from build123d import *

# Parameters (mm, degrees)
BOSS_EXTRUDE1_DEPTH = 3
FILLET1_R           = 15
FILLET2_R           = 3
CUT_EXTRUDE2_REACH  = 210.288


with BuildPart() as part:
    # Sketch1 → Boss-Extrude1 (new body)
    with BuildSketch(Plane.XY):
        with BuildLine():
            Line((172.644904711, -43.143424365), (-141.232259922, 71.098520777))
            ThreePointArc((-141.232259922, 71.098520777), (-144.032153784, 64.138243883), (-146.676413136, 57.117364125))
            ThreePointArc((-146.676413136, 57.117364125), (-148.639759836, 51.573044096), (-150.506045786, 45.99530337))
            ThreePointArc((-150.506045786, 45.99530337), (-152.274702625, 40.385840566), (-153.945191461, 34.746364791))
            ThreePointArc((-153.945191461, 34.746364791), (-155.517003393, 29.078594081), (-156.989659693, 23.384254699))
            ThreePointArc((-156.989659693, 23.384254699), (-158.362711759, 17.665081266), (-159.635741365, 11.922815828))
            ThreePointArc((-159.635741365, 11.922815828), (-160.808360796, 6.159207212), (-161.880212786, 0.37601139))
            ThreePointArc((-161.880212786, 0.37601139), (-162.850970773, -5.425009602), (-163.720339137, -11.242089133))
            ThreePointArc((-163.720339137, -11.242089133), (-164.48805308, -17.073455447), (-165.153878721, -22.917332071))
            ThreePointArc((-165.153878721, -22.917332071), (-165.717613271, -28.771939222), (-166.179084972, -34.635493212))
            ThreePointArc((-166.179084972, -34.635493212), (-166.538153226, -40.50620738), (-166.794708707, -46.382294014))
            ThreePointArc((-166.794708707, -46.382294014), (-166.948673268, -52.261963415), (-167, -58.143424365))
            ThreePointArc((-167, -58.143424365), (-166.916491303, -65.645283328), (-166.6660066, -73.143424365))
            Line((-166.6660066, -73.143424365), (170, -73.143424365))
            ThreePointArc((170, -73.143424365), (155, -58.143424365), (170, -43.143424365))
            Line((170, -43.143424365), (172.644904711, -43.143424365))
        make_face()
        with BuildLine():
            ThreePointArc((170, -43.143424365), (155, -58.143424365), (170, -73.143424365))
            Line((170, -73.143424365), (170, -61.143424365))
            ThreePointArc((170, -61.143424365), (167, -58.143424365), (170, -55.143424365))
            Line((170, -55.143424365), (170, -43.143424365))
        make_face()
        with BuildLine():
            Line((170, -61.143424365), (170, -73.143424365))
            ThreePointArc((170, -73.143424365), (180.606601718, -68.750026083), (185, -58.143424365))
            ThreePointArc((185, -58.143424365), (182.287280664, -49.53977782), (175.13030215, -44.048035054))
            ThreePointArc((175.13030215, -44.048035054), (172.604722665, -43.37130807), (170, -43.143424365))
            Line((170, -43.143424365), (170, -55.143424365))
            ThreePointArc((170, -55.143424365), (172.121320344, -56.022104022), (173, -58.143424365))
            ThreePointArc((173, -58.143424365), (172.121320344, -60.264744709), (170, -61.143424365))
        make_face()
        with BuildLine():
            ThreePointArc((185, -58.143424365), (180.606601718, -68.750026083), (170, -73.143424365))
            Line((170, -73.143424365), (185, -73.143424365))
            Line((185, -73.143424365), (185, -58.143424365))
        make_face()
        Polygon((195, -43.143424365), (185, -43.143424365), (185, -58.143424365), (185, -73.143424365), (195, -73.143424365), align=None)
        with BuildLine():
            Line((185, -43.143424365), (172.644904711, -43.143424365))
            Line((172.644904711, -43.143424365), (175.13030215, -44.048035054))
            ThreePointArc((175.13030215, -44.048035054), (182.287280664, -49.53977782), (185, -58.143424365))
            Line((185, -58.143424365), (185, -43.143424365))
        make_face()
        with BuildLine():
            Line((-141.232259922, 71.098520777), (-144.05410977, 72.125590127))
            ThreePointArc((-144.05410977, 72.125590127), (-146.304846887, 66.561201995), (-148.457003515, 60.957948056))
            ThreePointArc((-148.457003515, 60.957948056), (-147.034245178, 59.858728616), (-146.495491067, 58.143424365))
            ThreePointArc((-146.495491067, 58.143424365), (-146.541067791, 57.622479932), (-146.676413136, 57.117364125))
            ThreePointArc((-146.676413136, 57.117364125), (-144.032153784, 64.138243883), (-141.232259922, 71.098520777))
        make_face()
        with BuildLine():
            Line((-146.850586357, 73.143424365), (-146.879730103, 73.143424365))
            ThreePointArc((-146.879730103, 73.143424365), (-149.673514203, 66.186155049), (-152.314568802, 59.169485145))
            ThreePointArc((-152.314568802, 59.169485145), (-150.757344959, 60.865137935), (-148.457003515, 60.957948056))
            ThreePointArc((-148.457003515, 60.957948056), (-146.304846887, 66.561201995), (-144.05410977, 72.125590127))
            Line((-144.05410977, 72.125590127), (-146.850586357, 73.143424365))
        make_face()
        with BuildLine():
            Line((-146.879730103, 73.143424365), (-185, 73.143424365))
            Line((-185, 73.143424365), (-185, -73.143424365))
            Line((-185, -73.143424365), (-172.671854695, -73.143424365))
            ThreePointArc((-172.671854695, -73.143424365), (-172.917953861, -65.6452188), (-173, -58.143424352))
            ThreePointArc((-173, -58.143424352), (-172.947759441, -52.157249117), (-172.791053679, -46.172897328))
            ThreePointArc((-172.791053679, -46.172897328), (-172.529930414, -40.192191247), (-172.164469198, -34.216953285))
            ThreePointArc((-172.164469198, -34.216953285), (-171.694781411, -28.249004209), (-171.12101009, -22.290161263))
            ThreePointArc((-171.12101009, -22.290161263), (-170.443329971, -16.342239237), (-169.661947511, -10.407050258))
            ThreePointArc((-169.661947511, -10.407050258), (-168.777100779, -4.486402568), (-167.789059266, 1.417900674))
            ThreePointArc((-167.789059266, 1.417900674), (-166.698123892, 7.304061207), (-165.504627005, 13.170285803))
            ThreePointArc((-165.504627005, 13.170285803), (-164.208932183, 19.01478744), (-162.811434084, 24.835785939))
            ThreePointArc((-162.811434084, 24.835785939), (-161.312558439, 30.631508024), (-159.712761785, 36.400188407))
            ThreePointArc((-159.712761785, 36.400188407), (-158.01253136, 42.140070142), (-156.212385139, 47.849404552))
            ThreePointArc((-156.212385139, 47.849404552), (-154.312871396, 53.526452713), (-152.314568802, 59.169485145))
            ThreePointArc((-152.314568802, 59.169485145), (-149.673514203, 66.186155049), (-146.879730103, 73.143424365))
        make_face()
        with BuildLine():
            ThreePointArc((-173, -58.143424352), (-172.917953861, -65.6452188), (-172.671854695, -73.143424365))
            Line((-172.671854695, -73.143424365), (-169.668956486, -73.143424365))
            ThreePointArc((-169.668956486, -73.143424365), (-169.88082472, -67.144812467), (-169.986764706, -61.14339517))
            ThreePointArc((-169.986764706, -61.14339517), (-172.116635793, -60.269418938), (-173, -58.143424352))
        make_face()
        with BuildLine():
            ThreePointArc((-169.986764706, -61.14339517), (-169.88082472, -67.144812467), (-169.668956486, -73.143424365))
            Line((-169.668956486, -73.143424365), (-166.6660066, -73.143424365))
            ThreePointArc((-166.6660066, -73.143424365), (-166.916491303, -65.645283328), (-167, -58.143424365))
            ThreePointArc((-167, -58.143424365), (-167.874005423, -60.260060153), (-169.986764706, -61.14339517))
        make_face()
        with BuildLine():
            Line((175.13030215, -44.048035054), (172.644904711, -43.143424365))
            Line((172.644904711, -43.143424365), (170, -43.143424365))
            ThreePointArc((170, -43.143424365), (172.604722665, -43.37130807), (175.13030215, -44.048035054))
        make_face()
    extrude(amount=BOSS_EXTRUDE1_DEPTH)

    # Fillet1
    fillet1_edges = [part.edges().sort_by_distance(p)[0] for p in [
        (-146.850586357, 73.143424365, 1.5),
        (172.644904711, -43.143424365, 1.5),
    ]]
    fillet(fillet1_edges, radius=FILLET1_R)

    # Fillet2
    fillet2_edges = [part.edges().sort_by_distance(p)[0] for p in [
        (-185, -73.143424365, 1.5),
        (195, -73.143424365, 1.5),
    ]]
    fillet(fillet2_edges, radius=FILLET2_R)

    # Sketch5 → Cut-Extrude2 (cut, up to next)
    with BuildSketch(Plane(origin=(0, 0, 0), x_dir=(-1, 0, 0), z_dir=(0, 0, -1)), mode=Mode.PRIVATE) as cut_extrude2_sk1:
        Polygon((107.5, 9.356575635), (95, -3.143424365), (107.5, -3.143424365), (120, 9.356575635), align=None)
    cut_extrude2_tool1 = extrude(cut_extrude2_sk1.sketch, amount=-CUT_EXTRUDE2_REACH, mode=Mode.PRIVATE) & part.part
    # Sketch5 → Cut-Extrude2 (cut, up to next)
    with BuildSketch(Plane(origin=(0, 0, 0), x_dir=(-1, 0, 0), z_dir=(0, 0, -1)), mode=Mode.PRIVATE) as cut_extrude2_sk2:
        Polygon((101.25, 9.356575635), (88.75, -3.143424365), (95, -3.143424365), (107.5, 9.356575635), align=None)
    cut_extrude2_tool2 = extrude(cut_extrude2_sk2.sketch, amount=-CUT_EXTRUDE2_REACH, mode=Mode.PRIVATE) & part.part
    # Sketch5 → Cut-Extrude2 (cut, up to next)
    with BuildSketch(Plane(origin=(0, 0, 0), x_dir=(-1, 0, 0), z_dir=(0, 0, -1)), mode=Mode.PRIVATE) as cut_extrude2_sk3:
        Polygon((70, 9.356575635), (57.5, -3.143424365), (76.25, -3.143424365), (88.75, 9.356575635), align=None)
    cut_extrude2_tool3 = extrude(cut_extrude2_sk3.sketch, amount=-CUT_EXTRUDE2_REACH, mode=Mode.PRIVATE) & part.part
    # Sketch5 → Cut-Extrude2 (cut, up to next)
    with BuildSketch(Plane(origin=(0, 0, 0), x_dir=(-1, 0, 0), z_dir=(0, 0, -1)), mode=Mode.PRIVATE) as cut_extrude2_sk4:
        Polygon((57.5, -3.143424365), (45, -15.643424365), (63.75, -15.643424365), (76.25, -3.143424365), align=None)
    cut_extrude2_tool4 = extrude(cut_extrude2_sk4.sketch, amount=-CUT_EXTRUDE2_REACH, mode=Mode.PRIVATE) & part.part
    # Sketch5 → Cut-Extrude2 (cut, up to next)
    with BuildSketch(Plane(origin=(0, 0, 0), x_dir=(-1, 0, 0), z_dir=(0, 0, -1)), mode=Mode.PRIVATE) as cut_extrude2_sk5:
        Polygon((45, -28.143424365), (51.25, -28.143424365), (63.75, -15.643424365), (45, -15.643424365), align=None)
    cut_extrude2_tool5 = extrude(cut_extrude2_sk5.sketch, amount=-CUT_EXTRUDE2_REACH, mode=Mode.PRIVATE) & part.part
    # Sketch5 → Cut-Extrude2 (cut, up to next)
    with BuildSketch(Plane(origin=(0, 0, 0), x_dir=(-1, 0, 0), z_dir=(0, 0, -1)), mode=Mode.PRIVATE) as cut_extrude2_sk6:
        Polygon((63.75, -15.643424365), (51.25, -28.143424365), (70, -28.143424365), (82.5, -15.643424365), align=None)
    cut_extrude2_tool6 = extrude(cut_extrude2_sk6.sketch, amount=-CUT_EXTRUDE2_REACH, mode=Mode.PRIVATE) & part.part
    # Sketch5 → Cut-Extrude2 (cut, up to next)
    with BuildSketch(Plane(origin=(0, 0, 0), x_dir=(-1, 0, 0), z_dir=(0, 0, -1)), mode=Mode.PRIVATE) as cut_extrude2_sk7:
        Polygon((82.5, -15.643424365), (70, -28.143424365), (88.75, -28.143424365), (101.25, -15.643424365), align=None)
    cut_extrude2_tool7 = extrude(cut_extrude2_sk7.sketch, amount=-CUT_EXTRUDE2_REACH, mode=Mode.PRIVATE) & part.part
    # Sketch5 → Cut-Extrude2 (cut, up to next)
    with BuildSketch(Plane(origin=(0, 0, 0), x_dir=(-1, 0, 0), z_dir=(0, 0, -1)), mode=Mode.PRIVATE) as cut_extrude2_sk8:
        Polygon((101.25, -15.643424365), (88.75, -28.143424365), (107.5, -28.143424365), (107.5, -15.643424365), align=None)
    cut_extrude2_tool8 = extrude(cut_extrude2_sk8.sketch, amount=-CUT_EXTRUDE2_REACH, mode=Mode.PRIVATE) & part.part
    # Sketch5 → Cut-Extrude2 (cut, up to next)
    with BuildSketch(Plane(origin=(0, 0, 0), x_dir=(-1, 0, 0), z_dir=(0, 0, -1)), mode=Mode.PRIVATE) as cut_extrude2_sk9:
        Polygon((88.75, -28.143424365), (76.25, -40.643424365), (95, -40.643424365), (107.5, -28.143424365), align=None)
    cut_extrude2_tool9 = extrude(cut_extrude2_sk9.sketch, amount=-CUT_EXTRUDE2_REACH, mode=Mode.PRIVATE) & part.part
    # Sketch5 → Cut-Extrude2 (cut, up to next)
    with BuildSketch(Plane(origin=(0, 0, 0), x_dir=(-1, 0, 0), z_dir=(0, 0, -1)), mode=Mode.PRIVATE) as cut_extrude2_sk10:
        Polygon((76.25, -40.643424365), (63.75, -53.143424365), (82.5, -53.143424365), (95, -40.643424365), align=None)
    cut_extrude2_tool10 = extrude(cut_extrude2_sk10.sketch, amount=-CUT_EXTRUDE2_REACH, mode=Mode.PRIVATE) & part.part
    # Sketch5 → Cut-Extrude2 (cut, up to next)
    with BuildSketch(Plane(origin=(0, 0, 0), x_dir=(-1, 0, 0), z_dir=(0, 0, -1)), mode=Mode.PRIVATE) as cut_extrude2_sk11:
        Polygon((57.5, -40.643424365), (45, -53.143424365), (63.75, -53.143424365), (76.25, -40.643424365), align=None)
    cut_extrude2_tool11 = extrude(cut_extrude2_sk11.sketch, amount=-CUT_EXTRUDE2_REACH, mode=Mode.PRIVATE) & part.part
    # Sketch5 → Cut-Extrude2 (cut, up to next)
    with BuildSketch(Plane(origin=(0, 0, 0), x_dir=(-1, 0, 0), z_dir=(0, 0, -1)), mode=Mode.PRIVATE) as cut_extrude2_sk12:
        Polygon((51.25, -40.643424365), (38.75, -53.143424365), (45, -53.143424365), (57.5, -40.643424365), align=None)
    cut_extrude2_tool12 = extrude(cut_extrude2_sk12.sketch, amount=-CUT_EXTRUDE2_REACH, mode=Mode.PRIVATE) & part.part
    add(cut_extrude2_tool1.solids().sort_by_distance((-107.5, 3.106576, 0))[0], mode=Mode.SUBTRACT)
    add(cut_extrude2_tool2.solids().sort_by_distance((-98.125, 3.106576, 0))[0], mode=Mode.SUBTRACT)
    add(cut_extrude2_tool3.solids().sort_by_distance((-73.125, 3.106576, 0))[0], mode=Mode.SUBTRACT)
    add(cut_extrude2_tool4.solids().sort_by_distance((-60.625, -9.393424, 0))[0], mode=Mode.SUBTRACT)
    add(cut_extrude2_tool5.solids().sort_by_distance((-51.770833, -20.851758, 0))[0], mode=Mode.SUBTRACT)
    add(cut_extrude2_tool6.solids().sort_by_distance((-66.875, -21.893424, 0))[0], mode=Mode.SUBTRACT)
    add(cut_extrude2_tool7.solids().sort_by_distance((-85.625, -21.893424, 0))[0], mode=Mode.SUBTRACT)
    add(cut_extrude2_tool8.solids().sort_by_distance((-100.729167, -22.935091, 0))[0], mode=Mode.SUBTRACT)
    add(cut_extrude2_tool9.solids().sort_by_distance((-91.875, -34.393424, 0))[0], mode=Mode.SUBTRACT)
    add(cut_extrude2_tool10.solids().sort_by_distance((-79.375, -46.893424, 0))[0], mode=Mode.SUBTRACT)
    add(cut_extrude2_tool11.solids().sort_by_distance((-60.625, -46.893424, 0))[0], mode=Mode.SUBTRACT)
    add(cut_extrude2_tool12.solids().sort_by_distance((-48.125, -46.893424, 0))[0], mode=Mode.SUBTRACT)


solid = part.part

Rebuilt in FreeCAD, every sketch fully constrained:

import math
import FreeCAD as App
import Part
import Sketcher

V = App.Vector
Q = App.Units.Quantity


def edges_at(feature, points):
    """Names of the edges that pass closest to the given points."""
    edges = feature.Shape.Edges
    near = lambda p: min(range(len(edges)), key=lambda i: edges[i].distToShape(Part.Vertex(*p))[0])
    return sorted({f"Edge{near(p) + 1}" for p in points})


def add_polygon(sketch, points):
    """Adds a closed chain of lines whose ends are joined by coincident constraints."""
    first, n = sketch.GeometryCount, len(points)
    for a, b in zip(points, points[1:] + points[:1]):
        sketch.addGeometry(Part.LineSegment(App.Vector(*a, 0), App.Vector(*b, 0)), False)
    for i in range(n):
        sketch.addConstraint(Sketcher.Constraint("Coincident", first + i, 2, first + (i + 1) % n, 1))

doc = App.newDocument("Part")
body = doc.addObject("PartDesign::Body", "Body")

sketch1 = body.newObject("Sketcher::SketchObject", "Sketch")
sketch1.AttachmentSupport = (doc.getObject("XY_Plane"), [""])
sketch1.MapMode = "FlatFace"
add_polygon(sketch1, [(195, -43.1), (172.6, -43.1), (-141.2, 71.1), (-144.1, 72.1), (-146.9, 73.1), (-185, 73.1), (-185, -73.1), (195, -73.1)])
sketch1.addGeometry(Part.ArcOfCircle(Part.Circle(V(170, -58.1, 0), V(0, 0, 1), 3), math.radians(90), math.radians(270)), False)
sketch1.addGeometry(Part.ArcOfCircle(Part.Circle(V(170, -58.1, 0), V(0, 0, 1), 3), math.radians(0), math.radians(90)), False)
sketch1.addGeometry(Part.ArcOfCircle(Part.Circle(V(170, -58.1, 0), V(0, 0, 1), 3), math.radians(-90), math.radians(0)), False)
sketch1.addGeometry(Part.ArcOfCircle(Part.Circle(V(170, -58.1, 0), V(0, 0, 1), 337), math.radians(178), math.radians(180)), False)
sketch1.addGeometry(Part.ArcOfCircle(Part.Circle(V(-170, -58.1, 0), V(0, 0, 1), 3), math.radians(-90), math.radians(0)), False)
sketch1.addGeometry(Part.ArcOfCircle(Part.Circle(V(-170, -58.1, 0), V(0, 0, 1), 3), math.radians(180), math.radians(270)), False)
sketch1.addGeometry(Part.ArcOfCircle(Part.Circle(V(170, -58.1, 0), V(0, 0, 1), 343), math.radians(178), math.radians(180)), False)
sketch1.addGeometry(Part.ArcOfCircle(Part.Circle(V(170, -58.1, 0), V(0, 0, 1), 343), math.radians(176), math.radians(178)), False)
sketch1.addGeometry(Part.ArcOfCircle(Part.Circle(V(170, -58.1, 0), V(0, 0, 1), 343), math.radians(174), math.radians(176)), False)
sketch1.addGeometry(Part.ArcOfCircle(Part.Circle(V(170, -58.1, 0), V(0, 0, 1), 343), math.radians(172), math.radians(174)), False)
sketch1.addGeometry(Part.ArcOfCircle(Part.Circle(V(170, -58.1, 0), V(0, 0, 1), 343), math.radians(170), math.radians(172)), False)
sketch1.addGeometry(Part.ArcOfCircle(Part.Circle(V(170, -58.1, 0), V(0, 0, 1), 343), math.radians(168), math.radians(170)), False)
sketch1.addGeometry(Part.ArcOfCircle(Part.Circle(V(170, -58.1, 0), V(0, 0, 1), 343), math.radians(166), math.radians(168)), False)
sketch1.addGeometry(Part.ArcOfCircle(Part.Circle(V(170, -58.1, 0), V(0, 0, 1), 343), math.radians(164), math.radians(166)), False)
sketch1.addGeometry(Part.ArcOfCircle(Part.Circle(V(170, -58.1, 0), V(0, 0, 1), 343), math.radians(162), math.radians(164)), False)
sketch1.addGeometry(Part.ArcOfCircle(Part.Circle(V(170, -58.1, 0), V(0, 0, 1), 343), math.radians(160), math.radians(162)), False)
sketch1.addGeometry(Part.ArcOfCircle(Part.Circle(V(-149.5, 58.1, 0), V(0, 0, 1), 3), math.radians(70), math.radians(160)), False)
sketch1.addGeometry(Part.ArcOfCircle(Part.Circle(V(-149.5, 58.1, 0), V(0, 0, 1), 3), math.radians(0), math.radians(70)), False)
sketch1.addGeometry(Part.ArcOfCircle(Part.Circle(V(-149.5, 58.1, 0), V(0, 0, 1), 3), math.radians(-20), math.radians(0)), False)
sketch1.addGeometry(Part.ArcOfCircle(Part.Circle(V(170, -58.1, 0), V(0, 0, 1), 337), math.radians(160), math.radians(162)), False)
sketch1.addGeometry(Part.ArcOfCircle(Part.Circle(V(170, -58.1, 0), V(0, 0, 1), 337), math.radians(162), math.radians(164)), False)
sketch1.addGeometry(Part.ArcOfCircle(Part.Circle(V(170, -58.1, 0), V(0, 0, 1), 337), math.radians(164), math.radians(166)), False)
sketch1.addGeometry(Part.ArcOfCircle(Part.Circle(V(170, -58.1, 0), V(0, 0, 1), 337), math.radians(166), math.radians(168)), False)
sketch1.addGeometry(Part.ArcOfCircle(Part.Circle(V(170, -58.1, 0), V(0, 0, 1), 337), math.radians(168), math.radians(170)), False)
sketch1.addGeometry(Part.ArcOfCircle(Part.Circle(V(170, -58.1, 0), V(0, 0, 1), 337), math.radians(170), math.radians(172)), False)
sketch1.addGeometry(Part.ArcOfCircle(Part.Circle(V(170, -58.1, 0), V(0, 0, 1), 337), math.radians(172), math.radians(174)), False)
sketch1.addGeometry(Part.ArcOfCircle(Part.Circle(V(170, -58.1, 0), V(0, 0, 1), 337), math.radians(174), math.radians(176)), False)
sketch1.addGeometry(Part.ArcOfCircle(Part.Circle(V(170, -58.1, 0), V(0, 0, 1), 337), math.radians(176), math.radians(178)), False)
sketch1.addConstraint([
    Sketcher.Constraint("Tangent", 8, 1, 9, 2),
    Sketcher.Constraint("Tangent", 9, 1, 10, 2),
    Sketcher.Constraint("Tangent", 10, 1, 8, 2),
    Sketcher.Constraint("Tangent", 11, 2, 12, 2),
    Sketcher.Constraint("Tangent", 12, 1, 13, 2),
    Sketcher.Constraint("Tangent", 13, 1, 14, 2),
    Sketcher.Constraint("Tangent", 14, 1, 15, 2),
    Sketcher.Constraint("Tangent", 15, 1, 16, 2),
    Sketcher.Constraint("Tangent", 16, 1, 17, 2),
    Sketcher.Constraint("Tangent", 17, 1, 18, 2),
    Sketcher.Constraint("Tangent", 18, 1, 19, 2),
    Sketcher.Constraint("Tangent", 19, 1, 20, 2),
    Sketcher.Constraint("Tangent", 20, 1, 21, 2),
    Sketcher.Constraint("Tangent", 21, 1, 22, 2),
    Sketcher.Constraint("Tangent", 22, 1, 23, 2),
    Sketcher.Constraint("Tangent", 23, 1, 24, 2),
    Sketcher.Constraint("Tangent", 24, 1, 25, 2),
    Sketcher.Constraint("Tangent", 25, 1, 26, 2),
    Sketcher.Constraint("Tangent", 26, 1, 27, 1),
    Sketcher.Constraint("Tangent", 27, 2, 28, 1),
    Sketcher.Constraint("Tangent", 28, 2, 29, 1),
    Sketcher.Constraint("Tangent", 29, 2, 30, 1),
    Sketcher.Constraint("Tangent", 30, 2, 31, 1),
    Sketcher.Constraint("Tangent", 31, 2, 32, 1),
    Sketcher.Constraint("Tangent", 32, 2, 33, 1),
    Sketcher.Constraint("Tangent", 33, 2, 34, 1),
    Sketcher.Constraint("Tangent", 34, 2, 35, 1),
    Sketcher.Constraint("Tangent", 35, 2, 11, 1),
    Sketcher.Constraint("Horizontal", 0),
    Sketcher.Constraint("Horizontal", 4),
    Sketcher.Constraint("Vertical", 5),
    Sketcher.Constraint("Horizontal", 6),
    Sketcher.Constraint("Vertical", 7),
    Sketcher.Constraint("Coincident", 11, 3, 8, 3),
    Sketcher.Constraint("Coincident", 14, 3, 8, 3),
    Sketcher.Constraint("Coincident", 16, 3, 8, 3),
    Sketcher.Constraint("Coincident", 18, 3, 8, 3),
    Sketcher.Constraint("Coincident", 20, 3, 8, 3),
    Sketcher.Constraint("Coincident", 22, 3, 8, 3),
    Sketcher.Constraint("Coincident", 26, 3, 24, 3),
    Sketcher.Constraint("Coincident", 27, 3, 8, 3),
    Sketcher.Constraint("Coincident", 29, 3, 8, 3),
    Sketcher.Constraint("Coincident", 31, 3, 8, 3),
    Sketcher.Constraint("Coincident", 33, 3, 8, 3),
    Sketcher.Constraint("Equal", 10, 12),
    Sketcher.Constraint("Equal", 12, 13),
    Sketcher.Constraint("Equal", 22, 23),
    Sketcher.Constraint("Equal", 33, 34),
    Sketcher.Constraint("Symmetric", 8, 3, 12, 3, -2),
    Sketcher.Constraint("Parallel", 1, 2),
    Sketcher.Constraint("Parallel", 2, 3),
    Sketcher.Constraint("Horizontal", 35, 3, 9, 1),
    Sketcher.Constraint("Horizontal", 26, 3, 25, 1),
    Sketcher.Constraint("Vertical", 35, 3, 8, 1),
    Sketcher.Constraint("Vertical", 8, 1, 10, 1),
    Sketcher.Constraint("Radius", 8, 3.0),
    Sketcher.Constraint("Radius", 11, 337.000001),
    Sketcher.Constraint("DistanceX", 6, 1, 6, 2, 380.0),
    Sketcher.Constraint("DistanceY", 7, 1, 7, 2, 30.0),
    Sketcher.Constraint("Angle", 1, Q("160 deg")),
    Sketcher.Constraint("DistanceX", 4, 2, -1, 1, 185.0),
    Sketcher.Constraint("Distance", 1, 334.021102),
    Sketcher.Constraint("DistanceY", 5, 2, 5, 1, 146.286849),
    Sketcher.Constraint("DistanceY", -1, 1, 18, 1, 1.417901),
    Sketcher.Constraint("Distance", 2, 3.00295),
    Sketcher.Constraint("DistanceX", 0, 2, 0, 1, 22.355095),
    Sketcher.Constraint("DistanceX", 24, 3, -1, 1, 149.495491),
    Sketcher.Constraint("DistanceY", -1, 1, 1, 2, 71.098521),
    Sketcher.Constraint("DistanceX", 15, 1, -1, 1, 172.164469),
    Sketcher.Constraint("DistanceX", 16, 1, -1, 1, 171.12101),
    Sketcher.Constraint("DistanceY", 17, 1, -1, 1, 10.40705),
    Sketcher.Constraint("DistanceX", 21, 1, -1, 1, 159.712762),
    Sketcher.Constraint("DistanceY", -1, 1, 24, 1, 60.957948),
    Sketcher.Constraint("DistanceX", 28, 2, -1, 1, 153.945191),
    Sketcher.Constraint("DistanceX", 29, 2, -1, 1, 156.98966),
    Sketcher.Constraint("DistanceX", 30, 2, -1, 1, 159.635741),
    Sketcher.Constraint("DistanceY", -1, 1, 31, 2, 0.376011),
    Sketcher.Constraint("DistanceX", 32, 2, -1, 1, 163.720339),
    Sketcher.Constraint("DistanceX", 33, 2, -1, 1, 165.153879),
    Sketcher.Constraint("DistanceX", 35, 2, -1, 1, 166.794709),
    Sketcher.Constraint("DistanceY", 8, 3, -1, 1, 58.143424),
    Sketcher.Constraint("DistanceX", 12, 1, -1, 1, 169.986765),
    Sketcher.Constraint("DistanceX", 14, 1, -1, 1, 172.791054),
    Sketcher.Constraint("DistanceX", 19, 1, -1, 1, 165.504627),
    Sketcher.Constraint("DistanceX", 20, 1, -1, 1, 162.811434),
    Sketcher.Constraint("DistanceX", 22, 1, -1, 1, 156.212385),
    Sketcher.Constraint("DistanceX", 27, 2, -1, 1, 150.506046),
    Sketcher.Constraint("DistanceX", 34, 2, -1, 1, 166.179085),
])
pad1 = body.newObject("PartDesign::Pad", "Pad")
pad1.Profile = sketch1
pad1.Length = 3
doc.recompute()

fillet = body.newObject("PartDesign::Fillet", "Fillet")
fillet.Base = (pad1, edges_at(pad1, [(-146.851, 73.143, 1.5), (172.645, -43.143, 1.5)]))
fillet.Radius = 15
doc.recompute()

fillet2 = body.newObject("PartDesign::Fillet", "Fillet001")
fillet2.Base = (fillet, edges_at(fillet, [(-185, -73.143, 1.5), (195, -73.143, 1.5)]))
fillet2.Radius = 3

sketch2 = body.newObject("Sketcher::SketchObject", "Sketch001")
sketch2.AttachmentSupport = (doc.getObject("XY_Plane"), [""])
sketch2.MapMode = "FlatFace"
add_polygon(sketch2, [(-108, 9), (-95, -3), (-108, -3), (-120, 9)])
sketch2.addConstraint([
    Sketcher.Constraint("Horizontal", 1),
    Sketcher.Constraint("Horizontal", 3),
    Sketcher.Constraint("Parallel", 0, 2),
    Sketcher.Constraint("Vertical", 1, 2, 3, 2),
    Sketcher.Constraint("Angle", 0, Q("-45 deg")),
    Sketcher.Constraint("DistanceX", 1, 2, 1, 1, 12.5),
    Sketcher.Constraint("DistanceX", 0, 2, -1, 1, 95.0),
    Sketcher.Constraint("DistanceY", 0, 2, -1, 1, 3.143424),
])
pocket1 = body.newObject("PartDesign::Pocket", "Pocket")
pocket1.Profile = sketch2
pocket1.Type = "UpToFirst"
pocket1.Reversed = True

sketch3 = body.newObject("Sketcher::SketchObject", "Sketch002")
sketch3.AttachmentSupport = (doc.getObject("XY_Plane"), [""])
sketch3.MapMode = "FlatFace"
add_polygon(sketch3, [(-101, 9), (-89, -3), (-95, -3), (-108, 9)])
sketch3.addConstraint([
    Sketcher.Constraint("Horizontal", 1),
    Sketcher.Constraint("Horizontal", 3),
    Sketcher.Constraint("Parallel", 0, 2),
    Sketcher.Constraint("Angle", 0, Q("-45 deg")),
    Sketcher.Constraint("DistanceX", 1, 2, -1, 1, 95.0),
    Sketcher.Constraint("DistanceX", 1, 2, 1, 1, 6.25),
    Sketcher.Constraint("DistanceX", 2, 2, -1, 1, 107.5),
    Sketcher.Constraint("DistanceY", 0, 2, -1, 1, 3.143424),
])
pocket2 = body.newObject("PartDesign::Pocket", "Pocket001")
pocket2.Profile = sketch3
pocket2.Type = "UpToFirst"
pocket2.Reversed = True

sketch4 = body.newObject("Sketcher::SketchObject", "Sketch003")
sketch4.AttachmentSupport = (doc.getObject("XY_Plane"), [""])
sketch4.MapMode = "FlatFace"
add_polygon(sketch4, [(-70, 9), (-58, -3), (-76, -3), (-89, 9)])
sketch4.addConstraint([
    Sketcher.Constraint("Horizontal", 1),
    Sketcher.Constraint("Horizontal", 3),
    Sketcher.Constraint("Parallel", 0, 2),
    Sketcher.Constraint("Angle", 0, Q("-45 deg")),
    Sketcher.Constraint("DistanceX", 3, 2, -1, 1, 70.0),
    Sketcher.Constraint("DistanceX", 1, 2, 1, 1, 18.75),
    Sketcher.Constraint("DistanceX", 0, 2, -1, 1, 57.5),
    Sketcher.Constraint("DistanceY", 0, 2, -1, 1, 3.143424),
])
pocket3 = body.newObject("PartDesign::Pocket", "Pocket002")
pocket3.Profile = sketch4
pocket3.Type = "UpToFirst"
pocket3.Reversed = True

sketch5 = body.newObject("Sketcher::SketchObject", "Sketch004")
sketch5.AttachmentSupport = (doc.getObject("XY_Plane"), [""])
sketch5.MapMode = "FlatFace"
add_polygon(sketch5, [(-58, -3), (-45, -16), (-64, -16), (-76, -3)])
sketch5.addConstraint([
    Sketcher.Constraint("Horizontal", 1),
    Sketcher.Constraint("Horizontal", 3),
    Sketcher.Constraint("Parallel", 0, 2),
    Sketcher.Constraint("Angle", 0, Q("-45 deg")),
    Sketcher.Constraint("DistanceX", 0, 2, -1, 1, 45.0),
    Sketcher.Constraint("DistanceX", 1, 2, 1, 1, 18.75),
    Sketcher.Constraint("DistanceX", 3, 2, -1, 1, 57.5),
    Sketcher.Constraint("DistanceY", 0, 2, -1, 1, 15.643424),
])
pocket4 = body.newObject("PartDesign::Pocket", "Pocket003")
pocket4.Profile = sketch5
pocket4.Type = "UpToFirst"
pocket4.Reversed = True

sketch6 = body.newObject("Sketcher::SketchObject", "Sketch005")
sketch6.AttachmentSupport = (doc.getObject("XY_Plane"), [""])
sketch6.MapMode = "FlatFace"
add_polygon(sketch6, [(-45, -28), (-51, -28), (-64, -16), (-45, -16)])
sketch6.addConstraint([
    Sketcher.Constraint("Horizontal", 0),
    Sketcher.Constraint("Horizontal", 2),
    Sketcher.Constraint("Vertical", 3),
    Sketcher.Constraint("Angle", 1, Q("135 deg")),
    Sketcher.Constraint("DistanceY", 3, 2, 3, 1, 12.5),
    Sketcher.Constraint("DistanceX", 2, 2, -1, 1, 45.0),
    Sketcher.Constraint("DistanceX", 0, 2, 0, 1, 6.25),
    Sketcher.Constraint("DistanceY", 0, 2, -1, 1, 28.143424),
])
pocket5 = body.newObject("PartDesign::Pocket", "Pocket004")
pocket5.Profile = sketch6
pocket5.Type = "UpToFirst"
pocket5.Reversed = True

sketch7 = body.newObject("Sketcher::SketchObject", "Sketch006")
sketch7.AttachmentSupport = (doc.getObject("XY_Plane"), [""])
sketch7.MapMode = "FlatFace"
add_polygon(sketch7, [(-64, -16), (-51, -28), (-70, -28), (-82, -16)])
sketch7.addConstraint([
    Sketcher.Constraint("Horizontal", 1),
    Sketcher.Constraint("Horizontal", 3),
    Sketcher.Constraint("Parallel", 0, 2),
    Sketcher.Constraint("Angle", 0, Q("-45 deg")),
    Sketcher.Constraint("DistanceX", 1, 2, -1, 1, 70.0),
    Sketcher.Constraint("DistanceX", 1, 2, 1, 1, 18.75),
    Sketcher.Constraint("DistanceX", 2, 2, -1, 1, 82.5),
    Sketcher.Constraint("DistanceY", 0, 2, -1, 1, 28.143424),
])
pocket6 = body.newObject("PartDesign::Pocket", "Pocket005")
pocket6.Profile = sketch7
pocket6.Type = "UpToFirst"
pocket6.Reversed = True

sketch8 = body.newObject("Sketcher::SketchObject", "Sketch007")
sketch8.AttachmentSupport = (doc.getObject("XY_Plane"), [""])
sketch8.MapMode = "FlatFace"
add_polygon(sketch8, [(-82, -16), (-70, -28), (-89, -28), (-101, -16)])
sketch8.addConstraint([
    Sketcher.Constraint("Horizontal", 1),
    Sketcher.Constraint("Horizontal", 3),
    Sketcher.Constraint("Parallel", 0, 2),
    Sketcher.Constraint("Angle", 0, Q("-45 deg")),
    Sketcher.Constraint("DistanceX", 0, 2, -1, 1, 70.0),
    Sketcher.Constraint("DistanceX", 1, 2, 1, 1, 18.75),
    Sketcher.Constraint("DistanceX", 3, 2, -1, 1, 82.5),
    Sketcher.Constraint("DistanceY", 0, 2, -1, 1, 28.143424),
])
pocket7 = body.newObject("PartDesign::Pocket", "Pocket006")
pocket7.Profile = sketch8
pocket7.Type = "UpToFirst"
pocket7.Reversed = True

sketch9 = body.newObject("Sketcher::SketchObject", "Sketch008")
sketch9.AttachmentSupport = (doc.getObject("XY_Plane"), [""])
sketch9.MapMode = "FlatFace"
add_polygon(sketch9, [(-101, -16), (-89, -28), (-108, -28), (-108, -16)])
sketch9.addConstraint([
    Sketcher.Constraint("Horizontal", 1),
    Sketcher.Constraint("Vertical", 2),
    Sketcher.Constraint("Horizontal", 3),
    Sketcher.Constraint("Angle", 0, Q("-45 deg")),
    Sketcher.Constraint("DistanceY", 2, 1, 2, 2, 12.5),
    Sketcher.Constraint("DistanceX", 1, 2, 1, 1, 18.75),
    Sketcher.Constraint("DistanceX", 1, 2, -1, 1, 107.5),
    Sketcher.Constraint("DistanceY", 0, 2, -1, 1, 28.143424),
])
pocket8 = body.newObject("PartDesign::Pocket", "Pocket007")
pocket8.Profile = sketch9
pocket8.Type = "UpToFirst"
pocket8.Reversed = True

sketch10 = body.newObject("Sketcher::SketchObject", "Sketch009")
sketch10.AttachmentSupport = (doc.getObject("XY_Plane"), [""])
sketch10.MapMode = "FlatFace"
add_polygon(sketch10, [(-89, -28), (-76, -41), (-95, -41), (-108, -28)])
sketch10.addConstraint([
    Sketcher.Constraint("Horizontal", 1),
    Sketcher.Constraint("Horizontal", 3),
    Sketcher.Constraint("Parallel", 0, 2),
    Sketcher.Constraint("Angle", 0, Q("-45 deg")),
    Sketcher.Constraint("DistanceX", 1, 2, -1, 1, 95.0),
    Sketcher.Constraint("DistanceX", 1, 2, 1, 1, 18.75),
    Sketcher.Constraint("DistanceX", 2, 2, -1, 1, 107.5),
    Sketcher.Constraint("DistanceY", 0, 2, -1, 1, 40.643424),
])
pocket9 = body.newObject("PartDesign::Pocket", "Pocket008")
pocket9.Profile = sketch10
pocket9.Type = "UpToFirst"
pocket9.Reversed = True

sketch11 = body.newObject("Sketcher::SketchObject", "Sketch010")
sketch11.AttachmentSupport = (doc.getObject("XY_Plane"), [""])
sketch11.MapMode = "FlatFace"
add_polygon(sketch11, [(-76, -41), (-64, -53), (-82, -53), (-95, -41)])
sketch11.addConstraint([
    Sketcher.Constraint("Horizontal", 1),
    Sketcher.Constraint("Horizontal", 3),
    Sketcher.Constraint("Parallel", 0, 2),
    Sketcher.Constraint("Angle", 0, Q("-45 deg")),
    Sketcher.Constraint("DistanceX", 2, 2, -1, 1, 95.0),
    Sketcher.Constraint("DistanceX", 1, 2, 1, 1, 18.75),
    Sketcher.Constraint("DistanceX", 1, 2, -1, 1, 82.5),
    Sketcher.Constraint("DistanceY", 0, 2, -1, 1, 53.143424),
])
pocket10 = body.newObject("PartDesign::Pocket", "Pocket009")
pocket10.Profile = sketch11
pocket10.Type = "UpToFirst"
pocket10.Reversed = True

sketch12 = body.newObject("Sketcher::SketchObject", "Sketch011")
sketch12.AttachmentSupport = (doc.getObject("XY_Plane"), [""])
sketch12.MapMode = "FlatFace"
add_polygon(sketch12, [(-58, -41), (-45, -53), (-64, -53), (-76, -41)])
sketch12.addConstraint([
    Sketcher.Constraint("Horizontal", 1),
    Sketcher.Constraint("Horizontal", 3),
    Sketcher.Constraint("Parallel", 0, 2),
    Sketcher.Constraint("Angle", 0, Q("-45 deg")),
    Sketcher.Constraint("DistanceX", 0, 2, -1, 1, 45.0),
    Sketcher.Constraint("DistanceX", 1, 2, 1, 1, 18.75),
    Sketcher.Constraint("DistanceX", 3, 2, -1, 1, 57.5),
    Sketcher.Constraint("DistanceY", 0, 2, -1, 1, 53.143424),
])
pocket11 = body.newObject("PartDesign::Pocket", "Pocket010")
pocket11.Profile = sketch12
pocket11.Type = "UpToFirst"
pocket11.Reversed = True

sketch13 = body.newObject("Sketcher::SketchObject", "Sketch012")
sketch13.AttachmentSupport = (doc.getObject("XY_Plane"), [""])
sketch13.MapMode = "FlatFace"
add_polygon(sketch13, [(-51, -41), (-39, -53), (-45, -53), (-58, -41)])
sketch13.addConstraint([
    Sketcher.Constraint("Horizontal", 1),
    Sketcher.Constraint("Horizontal", 3),
    Sketcher.Constraint("Parallel", 0, 2),
    Sketcher.Constraint("Angle", 0, Q("-45 deg")),
    Sketcher.Constraint("DistanceX", 1, 2, -1, 1, 45.0),
    Sketcher.Constraint("DistanceX", 1, 2, 1, 1, 6.25),
    Sketcher.Constraint("DistanceX", 2, 2, -1, 1, 57.5),
    Sketcher.Constraint("DistanceY", 0, 2, -1, 1, 53.143424),
])
pocket12 = body.newObject("PartDesign::Pocket", "Pocket011")
pocket12.Profile = sketch13
pocket12.Type = "UpToFirst"
pocket12.Reversed = True

doc.recompute()
